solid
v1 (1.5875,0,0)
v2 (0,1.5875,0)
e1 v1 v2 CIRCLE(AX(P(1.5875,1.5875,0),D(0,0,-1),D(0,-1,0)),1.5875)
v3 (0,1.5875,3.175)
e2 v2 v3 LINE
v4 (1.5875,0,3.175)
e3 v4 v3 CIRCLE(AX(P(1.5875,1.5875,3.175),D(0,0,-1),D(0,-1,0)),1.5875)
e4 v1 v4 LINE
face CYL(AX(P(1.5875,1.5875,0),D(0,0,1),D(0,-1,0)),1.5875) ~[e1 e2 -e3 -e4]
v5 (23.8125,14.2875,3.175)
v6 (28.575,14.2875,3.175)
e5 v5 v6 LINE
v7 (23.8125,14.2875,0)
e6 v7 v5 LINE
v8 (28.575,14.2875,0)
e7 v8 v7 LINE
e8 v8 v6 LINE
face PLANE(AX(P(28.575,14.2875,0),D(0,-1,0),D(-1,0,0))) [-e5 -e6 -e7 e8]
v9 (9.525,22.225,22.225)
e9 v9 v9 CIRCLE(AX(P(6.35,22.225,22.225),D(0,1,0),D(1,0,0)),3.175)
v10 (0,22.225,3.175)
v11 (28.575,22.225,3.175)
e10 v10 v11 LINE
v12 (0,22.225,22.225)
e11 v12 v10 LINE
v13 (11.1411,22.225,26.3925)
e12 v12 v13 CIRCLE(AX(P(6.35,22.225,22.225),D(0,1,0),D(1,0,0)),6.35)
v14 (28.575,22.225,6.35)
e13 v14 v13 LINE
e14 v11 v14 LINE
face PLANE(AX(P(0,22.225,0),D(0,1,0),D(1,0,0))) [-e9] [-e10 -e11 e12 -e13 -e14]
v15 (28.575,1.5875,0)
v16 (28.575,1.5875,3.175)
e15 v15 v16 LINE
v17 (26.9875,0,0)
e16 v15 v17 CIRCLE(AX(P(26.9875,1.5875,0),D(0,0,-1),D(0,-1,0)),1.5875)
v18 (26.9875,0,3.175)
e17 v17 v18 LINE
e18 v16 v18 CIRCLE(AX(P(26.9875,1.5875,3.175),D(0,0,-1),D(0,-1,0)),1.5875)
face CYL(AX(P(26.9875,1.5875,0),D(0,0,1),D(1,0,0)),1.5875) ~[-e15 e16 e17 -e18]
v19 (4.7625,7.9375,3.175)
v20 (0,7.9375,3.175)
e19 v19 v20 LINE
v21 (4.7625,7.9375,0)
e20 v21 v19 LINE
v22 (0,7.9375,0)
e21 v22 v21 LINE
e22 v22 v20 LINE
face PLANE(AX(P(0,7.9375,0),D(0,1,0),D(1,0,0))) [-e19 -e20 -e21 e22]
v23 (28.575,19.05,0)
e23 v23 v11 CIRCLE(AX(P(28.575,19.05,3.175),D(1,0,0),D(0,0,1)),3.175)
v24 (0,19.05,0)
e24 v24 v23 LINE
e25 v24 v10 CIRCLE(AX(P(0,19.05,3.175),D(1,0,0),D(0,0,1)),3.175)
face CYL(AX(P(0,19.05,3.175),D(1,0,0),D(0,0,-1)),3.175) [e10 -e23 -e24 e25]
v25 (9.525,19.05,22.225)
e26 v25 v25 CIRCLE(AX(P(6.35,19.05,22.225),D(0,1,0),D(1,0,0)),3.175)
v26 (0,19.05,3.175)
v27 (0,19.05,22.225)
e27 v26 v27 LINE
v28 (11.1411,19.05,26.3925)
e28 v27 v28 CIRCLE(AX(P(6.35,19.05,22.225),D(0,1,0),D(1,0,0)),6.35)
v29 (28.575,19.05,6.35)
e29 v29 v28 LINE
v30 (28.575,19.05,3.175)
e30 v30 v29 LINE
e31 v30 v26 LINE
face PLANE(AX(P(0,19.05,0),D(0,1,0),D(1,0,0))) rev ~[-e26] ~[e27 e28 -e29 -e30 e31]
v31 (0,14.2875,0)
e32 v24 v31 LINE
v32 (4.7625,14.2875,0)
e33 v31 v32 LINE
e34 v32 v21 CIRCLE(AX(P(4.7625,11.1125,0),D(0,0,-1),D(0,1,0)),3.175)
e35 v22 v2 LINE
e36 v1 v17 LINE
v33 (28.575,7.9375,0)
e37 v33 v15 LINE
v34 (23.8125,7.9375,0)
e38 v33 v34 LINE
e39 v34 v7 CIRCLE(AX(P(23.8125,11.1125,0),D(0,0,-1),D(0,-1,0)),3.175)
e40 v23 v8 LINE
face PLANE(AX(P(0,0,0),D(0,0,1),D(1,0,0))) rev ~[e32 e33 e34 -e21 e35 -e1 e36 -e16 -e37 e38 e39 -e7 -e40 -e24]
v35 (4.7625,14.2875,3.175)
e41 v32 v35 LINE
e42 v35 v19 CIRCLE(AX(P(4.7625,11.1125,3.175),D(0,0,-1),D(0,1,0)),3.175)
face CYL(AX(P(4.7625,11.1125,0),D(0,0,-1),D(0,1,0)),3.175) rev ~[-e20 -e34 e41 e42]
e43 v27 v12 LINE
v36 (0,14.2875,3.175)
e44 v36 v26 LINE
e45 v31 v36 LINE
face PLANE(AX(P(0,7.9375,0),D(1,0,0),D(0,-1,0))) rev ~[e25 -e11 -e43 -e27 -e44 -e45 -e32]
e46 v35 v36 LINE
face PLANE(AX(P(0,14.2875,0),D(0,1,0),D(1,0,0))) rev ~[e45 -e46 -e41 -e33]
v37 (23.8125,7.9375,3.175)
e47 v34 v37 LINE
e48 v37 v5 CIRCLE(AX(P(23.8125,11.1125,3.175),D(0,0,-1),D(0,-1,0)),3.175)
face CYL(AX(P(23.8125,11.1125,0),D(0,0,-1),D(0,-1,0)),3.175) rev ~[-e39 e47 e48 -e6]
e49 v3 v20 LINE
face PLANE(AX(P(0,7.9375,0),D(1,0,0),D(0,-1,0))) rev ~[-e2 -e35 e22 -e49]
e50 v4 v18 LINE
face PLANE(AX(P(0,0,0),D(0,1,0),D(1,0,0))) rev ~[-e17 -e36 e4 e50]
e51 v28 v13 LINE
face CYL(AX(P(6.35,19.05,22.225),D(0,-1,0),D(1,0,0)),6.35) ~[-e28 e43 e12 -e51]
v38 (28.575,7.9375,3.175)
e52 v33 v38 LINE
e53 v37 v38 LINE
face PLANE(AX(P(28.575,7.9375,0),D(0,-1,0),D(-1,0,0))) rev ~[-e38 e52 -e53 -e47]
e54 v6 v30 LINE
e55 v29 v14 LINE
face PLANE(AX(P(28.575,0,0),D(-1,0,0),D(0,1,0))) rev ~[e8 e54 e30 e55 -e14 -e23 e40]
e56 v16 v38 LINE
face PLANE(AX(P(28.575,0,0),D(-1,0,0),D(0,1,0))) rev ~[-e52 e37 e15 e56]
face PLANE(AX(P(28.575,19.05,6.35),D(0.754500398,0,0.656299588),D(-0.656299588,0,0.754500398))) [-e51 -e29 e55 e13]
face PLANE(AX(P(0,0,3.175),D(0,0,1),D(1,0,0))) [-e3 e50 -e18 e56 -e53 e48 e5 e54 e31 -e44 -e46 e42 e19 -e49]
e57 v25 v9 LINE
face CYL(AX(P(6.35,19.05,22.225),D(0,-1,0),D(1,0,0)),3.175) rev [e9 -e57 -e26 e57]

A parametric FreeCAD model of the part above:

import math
import FreeCAD as App
import Part
import Sketcher

V = App.Vector
Q = App.Units.Quantity


def edges_at(feature, points):
    """Names of the edges that pass closest to the given points."""
    edges = feature.Shape.Edges
    near = lambda p: min(range(len(edges)), key=lambda i: edges[i].distToShape(Part.Vertex(*p))[0])
    return sorted({f"Edge{near(p) + 1}" for p in points})


def add_polygon(sketch, points):
    """Adds a closed chain of lines whose ends are joined by coincident constraints."""
    first, n = sketch.GeometryCount, len(points)
    for a, b in zip(points, points[1:] + points[:1]):
        sketch.addGeometry(Part.LineSegment(App.Vector(*a, 0), App.Vector(*b, 0)), False)
    for i in range(n):
        sketch.addConstraint(Sketcher.Constraint("Coincident", first + i, 2, first + (i + 1) % n, 1))

doc = App.newDocument("Part")
body = doc.addObject("PartDesign::Body", "Body")

# Sketch on XY plane
sketch1 = body.newObject("Sketcher::SketchObject", "Sketch")
sketch1.AttachmentSupport = (doc.getObject("XY_Plane"), [""])
sketch1.MapMode = "FlatFace"
add_polygon(sketch1, [(0, 0), (29, 0), (29, 19), (0, 19)])  # lines 0-3
sketch1.addConstraint(Sketcher.Constraint("Horizontal", 0))
sketch1.addConstraint(Sketcher.Constraint("Vertical", 1))
sketch1.addConstraint(Sketcher.Constraint("Horizontal", 2))
sketch1.addConstraint(Sketcher.Constraint("Vertical", 3))
sketch1.addConstraint(Sketcher.Constraint("Coincident", 3, 2, -1, 1))
sketch1.addConstraint(Sketcher.Constraint("DistanceY", 1, 1, 1, 2, Q("0.75 in")))
sketch1.addConstraint(Sketcher.Constraint("DistanceX", 0, 1, 0, 2, Q("1.125 in")))
pad1 = body.newObject("PartDesign::Pad", "Pad")
pad1.Profile = sketch1
pad1.Length = Q("0.125 in")

# Sketch on XZ plane
sketch2 = body.newObject("Sketcher::SketchObject", "Sketch001")
sketch2.AttachmentSupport = (doc.getObject("XZ_Plane"), [""])
sketch2.MapMode = "FlatFace"
sketch2.AttachmentOffset = App.Placement(V(0, 0, -0.75 * 25.4), App.Rotation())
sketch2.addGeometry(Part.LineSegment(V(28.6, 0, 0), V(0, 0, 0)), False)
sketch2.addGeometry(Part.LineSegment(V(0, 0, 0), V(0, 22.2, 0)), False)
sketch2.addGeometry(Part.ArcOfCircle(Part.Circle(V(6.3, 22.2, 0), V(0, 0, 1), 6.3), math.radians(41), math.radians(180)), False)
sketch2.addGeometry(Part.LineSegment(V(11.1, 26.4, 0), V(28.6, 6.3, 0)), False)
sketch2.addGeometry(Part.LineSegment(V(28.6, 6.3, 0), V(28.6, 0, 0)), False)
sketch2.addGeometry(Part.Circle(V(6.3, 22.2, 0), V(0, 0, 1), 3.2), False)
sketch2.addConstraint(Sketcher.Constraint("Coincident", 0, 2, 1, 1))
sketch2.addConstraint(Sketcher.Constraint("Tangent", 1, 2, 2, 2))
sketch2.addConstraint(Sketcher.Constraint("Tangent", 2, 1, 3, 1))
sketch2.addConstraint(Sketcher.Constraint("Coincident", 3, 2, 4, 1))
sketch2.addConstraint(Sketcher.Constraint("Coincident", 4, 2, 0, 1))
sketch2.addConstraint(Sketcher.Constraint("Horizontal", 0))
sketch2.addConstraint(Sketcher.Constraint("Vertical", 1))
sketch2.addConstraint(Sketcher.Constraint("Vertical", 4))
sketch2.addConstraint(Sketcher.Constraint("Coincident", 0, 2, -1, 1))
sketch2.addConstraint(Sketcher.Constraint("Coincident", 5, 3, 2, 3))
sketch2.addConstraint(Sketcher.Constraint("Diameter", 5, Q("0.25 in")))
sketch2.addConstraint(Sketcher.Constraint("Radius", 2, Q("0.25 in")))
sketch2.addConstraint(Sketcher.Constraint("DistanceY", 4, 2, 4, 1, Q("0.25 in")))
sketch2.addConstraint(Sketcher.Constraint("DistanceX", 0, 2, 0, 1, Q("1.125 in")))
sketch2.addConstraint(Sketcher.Constraint("DistanceY", 1, 1, 1, 2, Q("0.875 in")))
pad2 = body.newObject("PartDesign::Pad", "Pad001")
pad2.Profile = sketch2
pad2.Length = Q("0.125 in")
pad2.Reversed = True
doc.recompute()

fillet = body.newObject("PartDesign::Fillet", "Fillet")
fillet.Base = (pad2, edges_at(pad2, [(14.287, 22.225, 0)]))
fillet.Radius = Q("0.125 in")

# Sketch on XY plane
sketch3 = body.newObject("Sketcher::SketchObject", "Sketch002")
sketch3.AttachmentSupport = (doc.getObject("XY_Plane"), [""])
sketch3.MapMode = "FlatFace"
sketch3.addGeometry(Part.LineSegment(V(28.6, 7.9, 0), V(23.8, 7.9, 0)), False)
sketch3.addGeometry(Part.ArcOfCircle(Part.Circle(V(23.8, 11.1, 0), V(0, 0, 1), 3.2), math.radians(90), math.radians(270)), False)
sketch3.addGeometry(Part.LineSegment(V(23.8, 14.3, 0), V(28.6, 14.3, 0)), False)
sketch3.addGeometry(Part.LineSegment(V(28.6, 14.3, 0), V(28.6, 7.9, 0)), False)
sketch3.addGeometry(Part.LineSegment(V(0, 7.9, 0), V(0, 14.3, 0)), False)
sketch3.addGeometry(Part.LineSegment(V(0, 14.3, 0), V(4.8, 14.3, 0)), False)
sketch3.addGeometry(Part.ArcOfCircle(Part.Circle(V(4.8, 11.1, 0), V(0, 0, 1), 3.2), math.radians(-90), math.radians(90)), False)
sketch3.addGeometry(Part.LineSegment(V(4.8, 7.9, 0), V(0, 7.9, 0)), False)
sketch3.addConstraint(Sketcher.Constraint("Tangent", 0, 2, 1, 2))
sketch3.addConstraint(Sketcher.Constraint("Tangent", 1, 1, 2, 1))
sketch3.addConstraint(Sketcher.Constraint("Coincident", 2, 2, 3, 1))
sketch3.addConstraint(Sketcher.Constraint("Coincident", 3, 2, 0, 1))
sketch3.addConstraint(Sketcher.Constraint("Coincident", 4, 2, 5, 1))
sketch3.addConstraint(Sketcher.Constraint("Tangent", 5, 2, 6, 2))
sketch3.addConstraint(Sketcher.Constraint("Tangent", 6, 1, 7, 1))
sketch3.addConstraint(Sketcher.Constraint("Coincident", 7, 2, 4, 1))
sketch3.addConstraint(Sketcher.Constraint("Horizontal", 0))
sketch3.addConstraint(Sketcher.Constraint("Horizontal", 2))
sketch3.addConstraint(Sketcher.Constraint("Vertical", 3))
sketch3.addConstraint(Sketcher.Constraint("Vertical", 4))
sketch3.addConstraint(Sketcher.Constraint("Horizontal", 5))
sketch3.addConstraint(Sketcher.Constraint("Horizontal", 7))
sketch3.addConstraint(Sketcher.Constraint("Equal", 1, 6))
sketch3.addConstraint(Sketcher.Constraint("PointOnObject", 4, 2, -2))
sketch3.addConstraint(Sketcher.Constraint("Horizontal", 1, 3, 6, 3))
sketch3.addConstraint(Sketcher.Constraint("Equal", 2, 5))
sketch3.addConstraint(Sketcher.Constraint("Radius", 1, Q("0.125 in")))
sketch3.addConstraint(Sketcher.Constraint("DistanceX", 0, 2, 0, 1, Q("0.1875 in")))
sketch3.addConstraint(Sketcher.Constraint("DistanceY", -1, 1, 0, 2, Q("0.3125 in")))
sketch3.addConstraint(Sketcher.Constraint("DistanceX", 6, 3, 1, 3, Q("0.75 in")))
pocket1 = body.newObject("PartDesign::Pocket", "Pocket")
pocket1.Profile = sketch3
pocket1.Type = "ThroughAll"
pocket1.Reversed = True
doc.recompute()

fillet2 = body.newObject("PartDesign::Fillet", "Fillet001")
fillet2.Base = (pocket1, edges_at(pocket1, [(28.575, 0, 1.587), (0, 0, 1.587)]))
fillet2.Radius = Q("0.0625 in")

doc.recompute()
